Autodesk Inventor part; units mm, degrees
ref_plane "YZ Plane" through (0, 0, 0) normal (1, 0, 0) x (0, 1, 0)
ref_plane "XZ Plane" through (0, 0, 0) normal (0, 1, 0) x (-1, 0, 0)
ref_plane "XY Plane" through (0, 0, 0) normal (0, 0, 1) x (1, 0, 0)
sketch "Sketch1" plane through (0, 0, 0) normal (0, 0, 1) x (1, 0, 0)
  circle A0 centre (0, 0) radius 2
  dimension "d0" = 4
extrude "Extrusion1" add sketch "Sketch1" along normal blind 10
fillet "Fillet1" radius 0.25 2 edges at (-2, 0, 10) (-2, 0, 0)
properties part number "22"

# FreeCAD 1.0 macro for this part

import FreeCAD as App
import Part
import Sketcher

V = App.Vector
Q = App.Units.Quantity


def edges_at(feature, points):
    """Names of the edges that pass closest to the given points."""
    edges = feature.Shape.Edges
    near = lambda p: min(range(len(edges)), key=lambda i: edges[i].distToShape(Part.Vertex(*p))[0])
    return sorted({f"Edge{near(p) + 1}" for p in points})

doc = App.newDocument("Part")
body = doc.addObject("PartDesign::Body", "Body")

sketch1 = doc.addObject("Sketcher::SketchObject", "Sketch")
body.addObject(sketch1)
sketch1.AttachmentSupport = (doc.XY_Plane, [""])
sketch1.MapMode = "FlatFace"
sketch1.addGeometry(Part.Circle(V(0, 0, 0), V(0, 0, 1), 2), False)
sketch1.addConstraint([
    Sketcher.Constraint("Coincident", 0, 3, -1, 1),
    Sketcher.Constraint("Diameter", 0, Q("4 mm")),
])
pad1 = doc.addObject("PartDesign::Pad", "Pad")
body.addObject(pad1)
pad1.Profile = sketch1
pad1.Length = 10
doc.recompute()

fillet = doc.addObject("PartDesign::Fillet", "Fillet")
body.addObject(fillet)
fillet.Base = (pad1, edges_at(pad1, [(-2, 0, 10), (-2, 0, 0)]))
fillet.Radius = 0.25

doc.recompute()
